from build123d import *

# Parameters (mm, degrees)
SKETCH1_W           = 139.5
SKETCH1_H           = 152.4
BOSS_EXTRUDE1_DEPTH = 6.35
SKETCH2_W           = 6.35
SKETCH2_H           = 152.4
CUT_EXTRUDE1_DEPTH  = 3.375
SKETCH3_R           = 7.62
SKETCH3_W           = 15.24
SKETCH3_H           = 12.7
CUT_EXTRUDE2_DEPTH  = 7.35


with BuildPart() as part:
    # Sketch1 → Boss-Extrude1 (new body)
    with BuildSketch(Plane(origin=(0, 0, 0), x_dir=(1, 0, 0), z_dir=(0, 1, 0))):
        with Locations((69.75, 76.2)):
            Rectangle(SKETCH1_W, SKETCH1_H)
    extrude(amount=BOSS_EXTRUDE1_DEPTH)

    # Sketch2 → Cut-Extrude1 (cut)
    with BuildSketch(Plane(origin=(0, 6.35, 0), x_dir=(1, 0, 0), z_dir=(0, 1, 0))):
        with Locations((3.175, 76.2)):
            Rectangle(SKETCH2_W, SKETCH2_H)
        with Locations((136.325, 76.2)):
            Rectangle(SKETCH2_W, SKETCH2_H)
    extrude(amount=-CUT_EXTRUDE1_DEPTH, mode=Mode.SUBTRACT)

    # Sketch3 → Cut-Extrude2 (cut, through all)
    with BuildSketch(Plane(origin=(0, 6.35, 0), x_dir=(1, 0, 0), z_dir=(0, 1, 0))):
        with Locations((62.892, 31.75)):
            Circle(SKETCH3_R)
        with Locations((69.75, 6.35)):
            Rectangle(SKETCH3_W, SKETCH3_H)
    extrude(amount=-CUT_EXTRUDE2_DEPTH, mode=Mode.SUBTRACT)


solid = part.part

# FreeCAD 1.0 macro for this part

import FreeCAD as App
import Part
import Sketcher
Q = App.Units.Quantity

doc = App.newDocument("Part")
params = doc.addObject("Spreadsheet::Sheet", "Params")
for row, (alias, value) in enumerate([
    ("sketch1_height", "6 in"),
    ("pad1_length", "0.25 in"),
    ("sketch2_height", "6 in"),
    ("sketch2_width", "0.25 in"),
    ("pocket1_length", "3.375 mm"),
    ("sketch3_diameter", "0.6 in"),
    ("sketch3_width", "0.6 in"),
    ("sketch3_height", "0.5 in"),
], start=1):
    params.set(f"A{row}", alias)
    params.set(f"B{row}", "=" + value)
    params.setAlias(f"B{row}", alias)

body = doc.addObject("PartDesign::Body", "Body")

sketch1 = body.newObject("Sketcher::SketchObject", "Sketch")
sketch1.AttachmentSupport = (doc.getObject("XZ_Plane"), [""])
sketch1.MapMode = "FlatFace"
sketch1.addGeometry([
    Part.LineSegment(App.Vector(0, -152, 0), App.Vector(0, 0, 0)),
    Part.LineSegment(App.Vector(0, 0, 0), App.Vector(140, 0, 0)),
    Part.LineSegment(App.Vector(140, 0, 0), App.Vector(140, -152, 0)),
    Part.LineSegment(App.Vector(140, -152, 0), App.Vector(0, -152, 0)),
], False)
sketch1.addConstraint([
    Sketcher.Constraint("Coincident", 0, 2, 1, 1),
    Sketcher.Constraint("Coincident", 1, 2, 2, 1),
    Sketcher.Constraint("Coincident", 2, 2, 3, 1),
    Sketcher.Constraint("Coincident", 3, 2, 0, 1),
    Sketcher.Constraint("Vertical", 0),
    Sketcher.Constraint("Horizontal", 1),
    Sketcher.Constraint("Vertical", 2),
    Sketcher.Constraint("Horizontal", 3),
    Sketcher.Constraint("Coincident", 0, 2, -1, 1),
    Sketcher.Constraint("DistanceY", 0, 1, 0, 2, Q("6 in")),
    Sketcher.Constraint("DistanceX", 1, 1, 1, 2, Q("139.5 mm")),
])
sketch1.setExpression("Constraints[9]", "Params.sketch1_height")
pad1 = body.newObject("PartDesign::Pad", "Pad")
pad1.Profile = sketch1
pad1.setExpression("Length", "Params.pad1_length")
pad1.Reversed = True

sketch2 = body.newObject("Sketcher::SketchObject", "Sketch001")
sketch2.AttachmentSupport = (doc.getObject("XZ_Plane"), [""])
sketch2.MapMode = "FlatFace"
sketch2.AttachmentOffset = App.Placement(App.Vector(0, 0, -0.25 * 25.4), App.Rotation())
sketch2.addGeometry([
    Part.LineSegment(App.Vector(0, -152, 0), App.Vector(0, 0, 0)),
    Part.LineSegment(App.Vector(0, 0, 0), App.Vector(6, 0, 0)),
    Part.LineSegment(App.Vector(6, 0, 0), App.Vector(6, -152, 0)),
    Part.LineSegment(App.Vector(6, -152, 0), App.Vector(0, -152, 0)),
    Part.LineSegment(App.Vector(133, -152, 0), App.Vector(133, 0, 0)),
    Part.LineSegment(App.Vector(133, 0, 0), App.Vector(140, 0, 0)),
    Part.LineSegment(App.Vector(140, 0, 0), App.Vector(140, -152, 0)),
    Part.LineSegment(App.Vector(140, -152, 0), App.Vector(133, -152, 0)),
], False)
sketch2.addConstraint([
    Sketcher.Constraint("Coincident", 0, 2, 1, 1),
    Sketcher.Constraint("Coincident", 1, 2, 2, 1),
    Sketcher.Constraint("Coincident", 2, 2, 3, 1),
    Sketcher.Constraint("Coincident", 3, 2, 0, 1),
    Sketcher.Constraint("Coincident", 4, 2, 5, 1),
    Sketcher.Constraint("Coincident", 5, 2, 6, 1),
    Sketcher.Constraint("Coincident", 6, 2, 7, 1),
    Sketcher.Constraint("Coincident", 7, 2, 4, 1),
    Sketcher.Constraint("Vertical", 0),
    Sketcher.Constraint("Horizontal", 1),
    Sketcher.Constraint("Vertical", 2),
    Sketcher.Constraint("Horizontal", 3),
    Sketcher.Constraint("Vertical", 4),
    Sketcher.Constraint("Horizontal", 5),
    Sketcher.Constraint("Vertical", 6),
    Sketcher.Constraint("Horizontal", 7),
    Sketcher.Constraint("Coincident", 0, 2, -1, 1),
    Sketcher.Constraint("PointOnObject", 4, 2, -1),
    Sketcher.Constraint("Horizontal", 3, 2, 6, 2),
    Sketcher.Constraint("Equal", 3, 5),
    Sketcher.Constraint("DistanceY", 0, 1, 0, 2, Q("6 in")),
    Sketcher.Constraint("DistanceX", 1, 1, 1, 2, Q("0.25 in")),
    Sketcher.Constraint("DistanceX", -1, 1, 4, 2, Q("133.15 mm")),
])
sketch2.setExpression("Constraints[20]", "Params.sketch2_height")
sketch2.setExpression("Constraints[21]", "Params.sketch2_width")
pocket1 = body.newObject("PartDesign::Pocket", "Pocket")
pocket1.Profile = sketch2
pocket1.setExpression("Length", "Params.pocket1_length")
pocket1.Reversed = True

sketch3 = body.newObject("Sketcher::SketchObject", "Sketch002")
sketch3.AttachmentSupport = (doc.getObject("XZ_Plane"), [""])
sketch3.MapMode = "FlatFace"
sketch3.AttachmentOffset = App.Placement(App.Vector(0, 0, -0.25 * 25.4), App.Rotation())
sketch3.addGeometry([
    Part.Circle(App.Vector(63, -32, 0), App.Vector(0, 0, 1), 8),
    Part.LineSegment(App.Vector(62, -13, 0), App.Vector(62, 0, 0)),
    Part.LineSegment(App.Vector(62, 0, 0), App.Vector(77, 0, 0)),
    Part.LineSegment(App.Vector(77, 0, 0), App.Vector(77, -13, 0)),
    Part.LineSegment(App.Vector(77, -13, 0), App.Vector(62, -13, 0)),
], False)
sketch3.addConstraint([
    Sketcher.Constraint("Coincident", 1, 2, 2, 1),
    Sketcher.Constraint("Coincident", 2, 2, 3, 1),
    Sketcher.Constraint("Coincident", 3, 2, 4, 1),
    Sketcher.Constraint("Coincident", 4, 2, 1, 1),
    Sketcher.Constraint("Vertical", 1),
    Sketcher.Constraint("Horizontal", 2),
    Sketcher.Constraint("Vertical", 3),
    Sketcher.Constraint("Horizontal", 4),
    Sketcher.Constraint("PointOnObject", 1, 2, -1),
    Sketcher.Constraint("Diameter", 0, Q("0.6 in")),
    Sketcher.Constraint("DistanceX", 2, 1, 2, 2, Q("0.6 in")),
    Sketcher.Constraint("DistanceY", 1, 1, 1, 2, Q("0.5 in")),
    Sketcher.Constraint("DistanceY", 0, 3, -1, 1, Q("1.25 in")),
    Sketcher.Constraint("DistanceX", 1, 2, 0, 3, Q("0.03 in")),
    Sketcher.Constraint("DistanceX", -1, 1, 0, 3, Q("62.892 mm")),
])
sketch3.setExpression("Constraints[9]", "Params.sketch3_diameter")
sketch3.setExpression("Constraints[10]", "Params.sketch3_width")
sketch3.setExpression("Constraints[11]", "Params.sketch3_height")
pocket2 = body.newObject("PartDesign::Pocket", "Pocket001")
pocket2.Profile = sketch3
pocket2.Type = "ThroughAll"
pocket2.Reversed = True

doc.recompute()
